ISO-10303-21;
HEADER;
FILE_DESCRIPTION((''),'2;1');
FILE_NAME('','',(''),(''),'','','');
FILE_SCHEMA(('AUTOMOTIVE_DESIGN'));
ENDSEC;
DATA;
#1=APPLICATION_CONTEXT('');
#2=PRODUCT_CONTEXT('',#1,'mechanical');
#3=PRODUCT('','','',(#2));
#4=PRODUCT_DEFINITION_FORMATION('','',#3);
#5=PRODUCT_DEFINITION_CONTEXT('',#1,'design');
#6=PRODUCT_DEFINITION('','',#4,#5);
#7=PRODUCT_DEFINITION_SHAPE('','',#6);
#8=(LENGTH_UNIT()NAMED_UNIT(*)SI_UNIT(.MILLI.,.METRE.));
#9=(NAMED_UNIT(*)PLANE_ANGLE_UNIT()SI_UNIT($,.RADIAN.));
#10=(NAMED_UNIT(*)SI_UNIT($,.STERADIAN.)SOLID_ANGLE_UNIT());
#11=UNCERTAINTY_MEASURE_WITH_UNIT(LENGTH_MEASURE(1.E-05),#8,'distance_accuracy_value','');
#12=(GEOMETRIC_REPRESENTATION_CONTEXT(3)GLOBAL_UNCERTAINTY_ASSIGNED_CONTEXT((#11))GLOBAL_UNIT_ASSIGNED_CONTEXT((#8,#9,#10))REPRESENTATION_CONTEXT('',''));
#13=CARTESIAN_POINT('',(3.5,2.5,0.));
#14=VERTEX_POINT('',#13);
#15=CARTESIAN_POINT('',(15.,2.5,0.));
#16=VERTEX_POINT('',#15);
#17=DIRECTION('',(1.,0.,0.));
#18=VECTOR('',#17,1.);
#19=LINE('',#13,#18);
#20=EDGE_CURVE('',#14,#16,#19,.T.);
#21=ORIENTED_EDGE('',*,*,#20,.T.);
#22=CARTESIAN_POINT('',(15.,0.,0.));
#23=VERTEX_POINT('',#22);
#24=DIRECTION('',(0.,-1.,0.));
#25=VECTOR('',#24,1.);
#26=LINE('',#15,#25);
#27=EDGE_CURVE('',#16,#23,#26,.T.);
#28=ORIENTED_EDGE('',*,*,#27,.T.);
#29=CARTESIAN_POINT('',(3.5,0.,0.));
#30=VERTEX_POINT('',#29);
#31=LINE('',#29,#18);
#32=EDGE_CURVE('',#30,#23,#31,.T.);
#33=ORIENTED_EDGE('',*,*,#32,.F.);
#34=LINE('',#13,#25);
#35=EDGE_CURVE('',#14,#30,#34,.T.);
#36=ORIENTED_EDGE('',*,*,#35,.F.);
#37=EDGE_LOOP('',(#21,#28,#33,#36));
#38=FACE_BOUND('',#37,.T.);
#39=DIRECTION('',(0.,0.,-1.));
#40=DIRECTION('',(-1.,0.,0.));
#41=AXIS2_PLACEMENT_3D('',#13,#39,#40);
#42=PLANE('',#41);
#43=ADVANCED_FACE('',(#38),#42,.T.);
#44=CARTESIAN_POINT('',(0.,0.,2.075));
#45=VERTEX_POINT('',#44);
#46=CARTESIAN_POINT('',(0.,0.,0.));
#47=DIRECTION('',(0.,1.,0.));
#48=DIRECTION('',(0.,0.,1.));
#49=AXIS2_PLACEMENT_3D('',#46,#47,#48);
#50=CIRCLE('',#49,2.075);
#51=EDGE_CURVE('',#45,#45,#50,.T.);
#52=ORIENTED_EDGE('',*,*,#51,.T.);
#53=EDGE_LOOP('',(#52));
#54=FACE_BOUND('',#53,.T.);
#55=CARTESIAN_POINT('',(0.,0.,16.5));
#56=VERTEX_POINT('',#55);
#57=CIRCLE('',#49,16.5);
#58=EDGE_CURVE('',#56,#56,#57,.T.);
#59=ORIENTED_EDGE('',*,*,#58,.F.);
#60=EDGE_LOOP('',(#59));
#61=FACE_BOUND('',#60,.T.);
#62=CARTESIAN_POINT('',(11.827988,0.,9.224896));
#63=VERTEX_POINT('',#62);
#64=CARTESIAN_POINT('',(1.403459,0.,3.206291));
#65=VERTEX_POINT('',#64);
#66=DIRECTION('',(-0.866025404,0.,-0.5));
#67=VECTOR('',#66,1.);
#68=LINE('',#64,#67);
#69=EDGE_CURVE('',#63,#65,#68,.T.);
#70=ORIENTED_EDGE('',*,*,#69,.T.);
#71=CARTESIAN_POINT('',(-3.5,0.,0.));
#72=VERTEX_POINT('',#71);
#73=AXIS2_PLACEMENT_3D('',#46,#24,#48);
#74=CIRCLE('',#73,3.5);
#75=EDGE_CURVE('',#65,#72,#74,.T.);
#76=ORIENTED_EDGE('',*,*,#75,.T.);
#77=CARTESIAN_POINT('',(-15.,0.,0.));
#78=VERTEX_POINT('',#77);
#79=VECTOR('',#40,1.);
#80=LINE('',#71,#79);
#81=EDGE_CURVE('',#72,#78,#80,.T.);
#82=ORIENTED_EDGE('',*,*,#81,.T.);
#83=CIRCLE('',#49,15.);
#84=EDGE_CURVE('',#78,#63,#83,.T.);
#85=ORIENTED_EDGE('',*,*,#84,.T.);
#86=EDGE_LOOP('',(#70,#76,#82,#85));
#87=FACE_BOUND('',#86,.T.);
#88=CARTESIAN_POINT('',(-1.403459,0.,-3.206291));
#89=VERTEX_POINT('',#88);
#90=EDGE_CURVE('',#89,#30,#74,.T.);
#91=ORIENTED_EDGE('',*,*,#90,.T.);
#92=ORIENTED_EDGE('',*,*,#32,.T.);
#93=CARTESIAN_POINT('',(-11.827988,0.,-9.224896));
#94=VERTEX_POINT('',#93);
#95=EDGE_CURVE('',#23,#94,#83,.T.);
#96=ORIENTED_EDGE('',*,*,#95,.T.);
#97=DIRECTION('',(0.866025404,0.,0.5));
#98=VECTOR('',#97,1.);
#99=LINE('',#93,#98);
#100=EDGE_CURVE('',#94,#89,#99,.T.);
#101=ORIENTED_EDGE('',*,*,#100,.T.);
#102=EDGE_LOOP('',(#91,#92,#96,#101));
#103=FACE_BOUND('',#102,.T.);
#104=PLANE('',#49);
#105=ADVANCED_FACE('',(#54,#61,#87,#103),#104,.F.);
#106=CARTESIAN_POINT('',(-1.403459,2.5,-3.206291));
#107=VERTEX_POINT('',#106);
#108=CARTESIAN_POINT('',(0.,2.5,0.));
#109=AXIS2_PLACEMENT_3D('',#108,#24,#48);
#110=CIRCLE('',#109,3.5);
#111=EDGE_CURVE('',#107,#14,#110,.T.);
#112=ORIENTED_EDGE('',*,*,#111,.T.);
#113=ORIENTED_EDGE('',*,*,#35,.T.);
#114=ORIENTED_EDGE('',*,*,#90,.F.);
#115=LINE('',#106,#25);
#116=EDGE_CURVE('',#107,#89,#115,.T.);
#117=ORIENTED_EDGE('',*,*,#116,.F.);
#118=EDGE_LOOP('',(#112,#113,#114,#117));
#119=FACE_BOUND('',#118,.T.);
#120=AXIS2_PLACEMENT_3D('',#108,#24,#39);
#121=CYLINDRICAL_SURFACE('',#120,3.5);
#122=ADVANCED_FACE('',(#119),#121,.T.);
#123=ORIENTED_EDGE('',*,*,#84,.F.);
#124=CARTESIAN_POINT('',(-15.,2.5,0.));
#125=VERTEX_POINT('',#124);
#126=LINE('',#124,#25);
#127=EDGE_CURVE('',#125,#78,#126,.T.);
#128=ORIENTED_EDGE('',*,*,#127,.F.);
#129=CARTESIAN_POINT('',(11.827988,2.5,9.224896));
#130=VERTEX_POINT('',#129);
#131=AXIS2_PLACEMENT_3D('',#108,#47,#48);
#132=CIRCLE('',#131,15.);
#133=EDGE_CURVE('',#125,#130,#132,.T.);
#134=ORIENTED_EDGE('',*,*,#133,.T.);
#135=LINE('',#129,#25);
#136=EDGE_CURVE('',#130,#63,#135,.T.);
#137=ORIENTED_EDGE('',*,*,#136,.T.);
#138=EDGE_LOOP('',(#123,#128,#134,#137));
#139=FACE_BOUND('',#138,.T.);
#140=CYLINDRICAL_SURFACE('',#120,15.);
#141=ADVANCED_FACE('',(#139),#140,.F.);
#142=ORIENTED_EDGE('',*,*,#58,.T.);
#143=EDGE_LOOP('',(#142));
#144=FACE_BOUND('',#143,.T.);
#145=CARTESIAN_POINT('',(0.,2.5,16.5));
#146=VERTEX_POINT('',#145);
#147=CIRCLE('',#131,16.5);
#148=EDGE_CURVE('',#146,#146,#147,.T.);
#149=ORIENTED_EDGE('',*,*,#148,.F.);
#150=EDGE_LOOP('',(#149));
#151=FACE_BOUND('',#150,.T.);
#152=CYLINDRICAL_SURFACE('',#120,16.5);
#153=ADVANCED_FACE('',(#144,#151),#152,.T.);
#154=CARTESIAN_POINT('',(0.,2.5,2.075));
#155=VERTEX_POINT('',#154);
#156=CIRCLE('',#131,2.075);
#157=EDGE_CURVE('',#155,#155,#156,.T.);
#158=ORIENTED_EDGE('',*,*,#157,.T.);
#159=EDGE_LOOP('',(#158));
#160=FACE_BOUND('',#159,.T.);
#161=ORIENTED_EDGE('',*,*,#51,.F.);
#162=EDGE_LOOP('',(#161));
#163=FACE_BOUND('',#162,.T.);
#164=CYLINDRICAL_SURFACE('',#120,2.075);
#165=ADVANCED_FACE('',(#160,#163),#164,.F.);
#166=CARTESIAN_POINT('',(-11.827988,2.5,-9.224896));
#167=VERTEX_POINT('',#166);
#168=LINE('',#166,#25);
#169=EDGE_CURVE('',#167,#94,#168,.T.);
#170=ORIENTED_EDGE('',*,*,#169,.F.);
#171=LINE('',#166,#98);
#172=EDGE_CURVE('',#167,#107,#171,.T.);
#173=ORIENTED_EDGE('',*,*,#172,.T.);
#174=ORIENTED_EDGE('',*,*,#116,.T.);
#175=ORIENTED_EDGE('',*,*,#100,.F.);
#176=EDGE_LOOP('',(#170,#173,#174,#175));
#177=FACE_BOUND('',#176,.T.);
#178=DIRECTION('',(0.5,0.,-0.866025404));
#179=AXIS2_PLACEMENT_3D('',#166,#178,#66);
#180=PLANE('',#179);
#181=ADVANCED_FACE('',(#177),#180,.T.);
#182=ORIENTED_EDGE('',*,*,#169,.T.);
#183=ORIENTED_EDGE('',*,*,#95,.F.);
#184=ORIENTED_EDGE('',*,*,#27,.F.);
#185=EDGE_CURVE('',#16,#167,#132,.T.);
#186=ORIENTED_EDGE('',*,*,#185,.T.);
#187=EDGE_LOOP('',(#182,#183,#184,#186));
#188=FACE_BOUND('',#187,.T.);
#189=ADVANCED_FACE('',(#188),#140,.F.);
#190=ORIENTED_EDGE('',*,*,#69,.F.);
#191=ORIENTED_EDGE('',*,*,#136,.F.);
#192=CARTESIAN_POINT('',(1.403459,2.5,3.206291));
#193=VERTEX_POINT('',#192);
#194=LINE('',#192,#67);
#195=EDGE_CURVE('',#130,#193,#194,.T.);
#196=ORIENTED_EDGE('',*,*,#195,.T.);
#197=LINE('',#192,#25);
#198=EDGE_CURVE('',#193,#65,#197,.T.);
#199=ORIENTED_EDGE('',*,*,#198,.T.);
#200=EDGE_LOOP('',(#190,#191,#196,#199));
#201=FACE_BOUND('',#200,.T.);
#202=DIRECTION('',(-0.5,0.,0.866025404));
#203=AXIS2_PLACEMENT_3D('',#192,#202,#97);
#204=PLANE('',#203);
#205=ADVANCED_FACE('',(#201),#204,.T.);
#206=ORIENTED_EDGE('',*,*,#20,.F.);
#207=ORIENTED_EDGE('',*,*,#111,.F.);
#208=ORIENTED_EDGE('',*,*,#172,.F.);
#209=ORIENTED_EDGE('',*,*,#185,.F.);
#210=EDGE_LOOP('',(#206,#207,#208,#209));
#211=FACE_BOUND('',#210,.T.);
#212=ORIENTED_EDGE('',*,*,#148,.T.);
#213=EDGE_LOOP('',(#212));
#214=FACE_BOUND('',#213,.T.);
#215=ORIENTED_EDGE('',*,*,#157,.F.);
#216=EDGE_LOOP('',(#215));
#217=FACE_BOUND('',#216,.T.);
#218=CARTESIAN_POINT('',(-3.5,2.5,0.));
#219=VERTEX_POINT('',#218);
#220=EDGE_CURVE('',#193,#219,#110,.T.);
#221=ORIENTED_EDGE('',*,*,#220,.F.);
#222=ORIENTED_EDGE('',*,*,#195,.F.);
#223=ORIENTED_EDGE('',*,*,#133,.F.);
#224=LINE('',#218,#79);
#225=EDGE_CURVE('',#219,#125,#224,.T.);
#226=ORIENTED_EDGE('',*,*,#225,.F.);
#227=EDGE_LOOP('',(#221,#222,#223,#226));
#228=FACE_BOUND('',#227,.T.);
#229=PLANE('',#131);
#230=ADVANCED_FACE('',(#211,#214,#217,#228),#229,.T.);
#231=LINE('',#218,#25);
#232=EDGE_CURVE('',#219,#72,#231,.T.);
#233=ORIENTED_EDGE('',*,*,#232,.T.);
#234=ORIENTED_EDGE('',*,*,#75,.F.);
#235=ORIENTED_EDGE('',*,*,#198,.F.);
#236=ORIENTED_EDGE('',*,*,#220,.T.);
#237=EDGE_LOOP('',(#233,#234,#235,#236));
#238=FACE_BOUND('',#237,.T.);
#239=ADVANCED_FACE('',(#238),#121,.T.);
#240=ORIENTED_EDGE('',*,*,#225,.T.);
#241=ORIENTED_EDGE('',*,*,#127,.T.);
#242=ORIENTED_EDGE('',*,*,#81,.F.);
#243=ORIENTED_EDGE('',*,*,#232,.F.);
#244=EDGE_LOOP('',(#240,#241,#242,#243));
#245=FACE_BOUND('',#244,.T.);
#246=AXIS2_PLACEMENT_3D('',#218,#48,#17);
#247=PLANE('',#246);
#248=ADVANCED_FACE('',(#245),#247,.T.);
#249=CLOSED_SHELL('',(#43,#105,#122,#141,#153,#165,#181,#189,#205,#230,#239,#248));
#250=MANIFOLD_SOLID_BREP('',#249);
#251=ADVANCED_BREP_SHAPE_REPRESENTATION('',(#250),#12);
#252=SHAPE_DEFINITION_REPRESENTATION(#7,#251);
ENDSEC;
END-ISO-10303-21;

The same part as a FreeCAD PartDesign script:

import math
import FreeCAD as App
import Part
import Sketcher
Q = App.Units.Quantity

doc = App.newDocument("Part")
body = doc.addObject("PartDesign::Body", "Body")

# Sketch on XZ plane
sketch1 = body.newObject("Sketcher::SketchObject", "Sketch")
sketch1.AttachmentSupport = (doc.getObject("XZ_Plane"), [""])
sketch1.MapMode = "FlatFace"
sketch1.addGeometry([
    Part.Circle(App.Vector(0, 0, 0), App.Vector(0, 0, 1), 16.5),  # 0
    Part.LineSegment(App.Vector(-15, 0, 0), App.Vector(-3.5, 0, 0)),  # 1
    Part.ArcOfCircle(Part.Circle(App.Vector(0, 0, 0), App.Vector(0, 0, 1), 3.5), math.radians(66.360023), math.radians(180)),  # 2
    Part.LineSegment(App.Vector(1.403459, 3.206291, 0), App.Vector(11.827988, 9.224896, 0)),  # 3
    Part.ArcOfCircle(Part.Circle(App.Vector(0, 0, 0), App.Vector(0, 0, 1), 15), math.radians(37.951415), math.radians(180)),  # 4
    Part.LineSegment(App.Vector(-1.403459, -3.206291, 0), App.Vector(-11.827988, -9.224896, 0)),  # 5
    Part.ArcOfCircle(Part.Circle(App.Vector(0, 0, 0), App.Vector(0, 0, 1), 15), math.radians(-142.048585), math.radians(0)),  # 6
    Part.LineSegment(App.Vector(15, 0, 0), App.Vector(3.5, 0, 0)),  # 7
    Part.ArcOfCircle(Part.Circle(App.Vector(0, 0, 0), App.Vector(0, 0, 1), 3.5), math.radians(-113.639977), math.radians(0)),  # 8
    Part.Circle(App.Vector(0, 0, 0), App.Vector(0, 0, 1), 2.075),  # 9
], False)
sketch1.addConstraint([
    Sketcher.Constraint("Coincident", 1, 2, 2, 2),
    Sketcher.Constraint("Coincident", 2, 1, 3, 1),
    Sketcher.Constraint("Coincident", 3, 2, 4, 1),
    Sketcher.Constraint("Coincident", 4, 2, 1, 1),
    Sketcher.Constraint("Coincident", 5, 2, 6, 1),
    Sketcher.Constraint("Coincident", 6, 2, 7, 1),
    Sketcher.Constraint("Coincident", 7, 2, 8, 2),
    Sketcher.Constraint("Coincident", 8, 1, 5, 1),
    Sketcher.Constraint("Horizontal", 1),
    Sketcher.Constraint("Horizontal", 7),
    Sketcher.Constraint("Coincident", 0, 3, -1, 1),
    Sketcher.Constraint("Coincident", 2, 3, -1, 1),
    Sketcher.Constraint("Coincident", 4, 3, -1, 1),
    Sketcher.Constraint("Coincident", 6, 3, -1, 1),
    Sketcher.Constraint("Coincident", 8, 3, -1, 1),
    Sketcher.Constraint("Coincident", 9, 3, -1, 1),
    Sketcher.Constraint("Equal", 4, 6),
    Sketcher.Constraint("Equal", 2, 8),
    Sketcher.Constraint("PointOnObject", 1, 2, -1),
    Sketcher.Constraint("PointOnObject", 6, 2, -1),
    Sketcher.Constraint("Parallel", 3, 5),
    Sketcher.Constraint("Equal", 3, 5),
    Sketcher.Constraint("Diameter", 0, Q("33 mm")),
    Sketcher.Constraint("Radius", 4, Q("15 mm")),
    Sketcher.Constraint("Radius", 2, Q("3.5 mm")),
    Sketcher.Constraint("Diameter", 9, Q("4.15 mm")),
    Sketcher.Constraint("Angle", 3, Q("30 deg")),
    Sketcher.Constraint("Distance", 3, Q("12.037209 mm")),
])
pad1 = body.newObject("PartDesign::Pad", "Pad")
pad1.Profile = sketch1
pad1.Length = 2.5
pad1.Reversed = True

doc.recompute()
